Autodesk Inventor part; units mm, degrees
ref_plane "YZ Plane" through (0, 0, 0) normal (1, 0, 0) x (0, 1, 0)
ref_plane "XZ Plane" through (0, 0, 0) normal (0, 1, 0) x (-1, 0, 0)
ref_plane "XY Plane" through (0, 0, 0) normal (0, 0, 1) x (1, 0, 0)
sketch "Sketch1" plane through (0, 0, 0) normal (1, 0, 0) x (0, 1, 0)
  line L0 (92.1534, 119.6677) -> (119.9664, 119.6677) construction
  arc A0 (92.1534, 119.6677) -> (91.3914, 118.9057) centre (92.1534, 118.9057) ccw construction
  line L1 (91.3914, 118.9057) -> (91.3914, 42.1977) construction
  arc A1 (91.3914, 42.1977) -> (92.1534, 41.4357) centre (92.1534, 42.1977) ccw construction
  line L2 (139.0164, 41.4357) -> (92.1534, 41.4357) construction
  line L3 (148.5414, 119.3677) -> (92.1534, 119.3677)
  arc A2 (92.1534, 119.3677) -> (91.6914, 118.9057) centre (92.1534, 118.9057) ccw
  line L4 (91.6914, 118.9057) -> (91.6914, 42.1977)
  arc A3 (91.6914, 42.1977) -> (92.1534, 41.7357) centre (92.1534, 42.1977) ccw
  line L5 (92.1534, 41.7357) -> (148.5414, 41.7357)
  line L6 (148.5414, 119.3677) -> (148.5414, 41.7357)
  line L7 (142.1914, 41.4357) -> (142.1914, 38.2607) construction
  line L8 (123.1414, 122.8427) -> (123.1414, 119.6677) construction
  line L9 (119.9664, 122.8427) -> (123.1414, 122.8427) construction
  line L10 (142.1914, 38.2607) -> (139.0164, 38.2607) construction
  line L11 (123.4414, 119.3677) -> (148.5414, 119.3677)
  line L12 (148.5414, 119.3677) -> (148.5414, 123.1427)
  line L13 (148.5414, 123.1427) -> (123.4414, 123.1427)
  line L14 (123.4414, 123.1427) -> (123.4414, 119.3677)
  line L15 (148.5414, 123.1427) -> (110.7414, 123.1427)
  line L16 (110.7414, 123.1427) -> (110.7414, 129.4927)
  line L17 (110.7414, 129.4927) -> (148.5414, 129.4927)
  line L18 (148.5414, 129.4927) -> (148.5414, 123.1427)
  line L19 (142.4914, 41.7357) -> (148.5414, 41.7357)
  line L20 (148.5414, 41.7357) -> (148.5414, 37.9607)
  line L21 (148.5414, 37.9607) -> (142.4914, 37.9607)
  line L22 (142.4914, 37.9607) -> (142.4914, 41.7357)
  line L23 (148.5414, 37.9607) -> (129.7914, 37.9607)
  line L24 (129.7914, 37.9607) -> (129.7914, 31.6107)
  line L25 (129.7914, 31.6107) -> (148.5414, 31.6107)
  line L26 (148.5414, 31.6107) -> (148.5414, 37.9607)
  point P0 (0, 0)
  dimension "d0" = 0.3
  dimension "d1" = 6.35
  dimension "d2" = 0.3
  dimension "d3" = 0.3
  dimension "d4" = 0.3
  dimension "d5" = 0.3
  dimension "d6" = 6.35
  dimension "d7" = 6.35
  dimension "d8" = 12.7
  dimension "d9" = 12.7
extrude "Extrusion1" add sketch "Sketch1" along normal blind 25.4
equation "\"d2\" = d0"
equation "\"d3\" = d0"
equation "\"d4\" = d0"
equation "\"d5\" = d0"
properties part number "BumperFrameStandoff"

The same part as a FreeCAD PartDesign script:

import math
import FreeCAD as App
import Part
import Sketcher
from FreeCAD import Vector
Q = App.Units.Quantity

doc = App.newDocument("Part")
body = doc.addObject("PartDesign::Body", "Body")

# Sketch on YZ plane
sketch1 = body.newObject("Sketcher::SketchObject", "Sketch")
sketch1.AttachmentSupport = (doc.getObject("YZ_Plane"), [""])
sketch1.MapMode = "FlatFace"
sketch1.addGeometry(Part.LineSegment(Vector(148.54, 129.49, 0), Vector(110.74, 129.49, 0)), False)
sketch1.addGeometry(Part.LineSegment(Vector(110.74, 129.49, 0), Vector(110.74, 123.14, 0)), False)
sketch1.addGeometry(Part.LineSegment(Vector(110.74, 123.14, 0), Vector(123.44, 123.14, 0)), False)
sketch1.addGeometry(Part.LineSegment(Vector(123.44, 123.14, 0), Vector(123.44, 119.37, 0)), False)
sketch1.addGeometry(Part.LineSegment(Vector(123.44, 119.37, 0), Vector(92.15, 119.37, 0)), False)
sketch1.addGeometry(Part.ArcOfCircle(Part.Circle(Vector(92.15, 118.91, 0), Vector(0, 0, 1), 0.46), math.radians(90), math.radians(180)), False)
sketch1.addGeometry(Part.LineSegment(Vector(91.69, 118.91, 0), Vector(91.69, 42.2, 0)), False)
sketch1.addGeometry(Part.ArcOfCircle(Part.Circle(Vector(92.15, 42.2, 0), Vector(0, 0, 1), 0.46), math.radians(180), math.radians(270)), False)
sketch1.addGeometry(Part.LineSegment(Vector(92.15, 41.74, 0), Vector(142.49, 41.74, 0)), False)
sketch1.addGeometry(Part.LineSegment(Vector(142.49, 41.74, 0), Vector(142.49, 37.96, 0)), False)
sketch1.addGeometry(Part.LineSegment(Vector(142.49, 37.96, 0), Vector(129.79, 37.96, 0)), False)
sketch1.addGeometry(Part.LineSegment(Vector(129.79, 37.96, 0), Vector(129.79, 31.61, 0)), False)
sketch1.addGeometry(Part.LineSegment(Vector(129.79, 31.61, 0), Vector(148.54, 31.61, 0)), False)
sketch1.addGeometry(Part.LineSegment(Vector(148.54, 31.61, 0), Vector(148.54, 129.49, 0)), False)
sketch1.addConstraint(Sketcher.Constraint("Coincident", 0, 2, 1, 1))
sketch1.addConstraint(Sketcher.Constraint("Coincident", 1, 2, 2, 1))
sketch1.addConstraint(Sketcher.Constraint("Coincident", 2, 2, 3, 1))
sketch1.addConstraint(Sketcher.Constraint("Coincident", 3, 2, 4, 1))
sketch1.addConstraint(Sketcher.Constraint("Tangent", 4, 2, 5, 1))
sketch1.addConstraint(Sketcher.Constraint("Tangent", 5, 2, 6, 1))
sketch1.addConstraint(Sketcher.Constraint("Tangent", 6, 2, 7, 1))
sketch1.addConstraint(Sketcher.Constraint("Tangent", 7, 2, 8, 1))
sketch1.addConstraint(Sketcher.Constraint("Coincident", 8, 2, 9, 1))
sketch1.addConstraint(Sketcher.Constraint("Coincident", 9, 2, 10, 1))
sketch1.addConstraint(Sketcher.Constraint("Coincident", 10, 2, 11, 1))
sketch1.addConstraint(Sketcher.Constraint("Coincident", 11, 2, 12, 1))
sketch1.addConstraint(Sketcher.Constraint("Coincident", 12, 2, 13, 1))
sketch1.addConstraint(Sketcher.Constraint("Coincident", 13, 2, 0, 1))
sketch1.addConstraint(Sketcher.Constraint("Horizontal", 0))
sketch1.addConstraint(Sketcher.Constraint("Vertical", 1))
sketch1.addConstraint(Sketcher.Constraint("Horizontal", 2))
sketch1.addConstraint(Sketcher.Constraint("Vertical", 3))
sketch1.addConstraint(Sketcher.Constraint("Horizontal", 4))
sketch1.addConstraint(Sketcher.Constraint("Vertical", 6))
sketch1.addConstraint(Sketcher.Constraint("Horizontal", 8))
sketch1.addConstraint(Sketcher.Constraint("Vertical", 9))
sketch1.addConstraint(Sketcher.Constraint("Horizontal", 10))
sketch1.addConstraint(Sketcher.Constraint("Vertical", 11))
sketch1.addConstraint(Sketcher.Constraint("Horizontal", 12))
sketch1.addConstraint(Sketcher.Constraint("Vertical", 13))
sketch1.addConstraint(Sketcher.Constraint("Equal", 5, 7))
sketch1.addConstraint(Sketcher.Constraint("Equal", 2, 10))
sketch1.addConstraint(Sketcher.Constraint("Equal", 3, 9))
sketch1.addConstraint(Sketcher.Constraint("Equal", 1, 11))
sketch1.addConstraint(Sketcher.Constraint("DistanceX", 2, 1, 2, 2, Q("0.5 in")))
sketch1.addConstraint(Sketcher.Constraint("DistanceY", 1, 2, 1, 1, Q("0.25 in")))
sketch1.addConstraint(Sketcher.Constraint("DistanceX", 6, 2, 8, 2, Q("2 in")))
sketch1.addConstraint(Sketcher.Constraint("DistanceY", 6, 2, 6, 1, Q("3.02 in")))
sketch1.addConstraint(Sketcher.Constraint("Radius", 5, Q("0.0182 in")))
sketch1.addConstraint(Sketcher.Constraint("DistanceX", 5, 2, 1, 2, Q("0.75 in")))
sketch1.addConstraint(Sketcher.Constraint("DistanceX", 7, 2, 12, 2, Q("2.22 in")))
sketch1.addConstraint(Sketcher.Constraint("DistanceY", 8, 2, 2, 2, Q("3.205 in")))
sketch1.addConstraint(Sketcher.Constraint("DistanceX", -1, 1, 0, 2, Q("4.3599 in")))
sketch1.addConstraint(Sketcher.Constraint("DistanceY", -1, 1, 5, 3, Q("118.9057 mm")))
pad1 = body.newObject("PartDesign::Pad", "Pad")
pad1.Profile = sketch1
pad1.Length = Q("1 in")

doc.recompute()
